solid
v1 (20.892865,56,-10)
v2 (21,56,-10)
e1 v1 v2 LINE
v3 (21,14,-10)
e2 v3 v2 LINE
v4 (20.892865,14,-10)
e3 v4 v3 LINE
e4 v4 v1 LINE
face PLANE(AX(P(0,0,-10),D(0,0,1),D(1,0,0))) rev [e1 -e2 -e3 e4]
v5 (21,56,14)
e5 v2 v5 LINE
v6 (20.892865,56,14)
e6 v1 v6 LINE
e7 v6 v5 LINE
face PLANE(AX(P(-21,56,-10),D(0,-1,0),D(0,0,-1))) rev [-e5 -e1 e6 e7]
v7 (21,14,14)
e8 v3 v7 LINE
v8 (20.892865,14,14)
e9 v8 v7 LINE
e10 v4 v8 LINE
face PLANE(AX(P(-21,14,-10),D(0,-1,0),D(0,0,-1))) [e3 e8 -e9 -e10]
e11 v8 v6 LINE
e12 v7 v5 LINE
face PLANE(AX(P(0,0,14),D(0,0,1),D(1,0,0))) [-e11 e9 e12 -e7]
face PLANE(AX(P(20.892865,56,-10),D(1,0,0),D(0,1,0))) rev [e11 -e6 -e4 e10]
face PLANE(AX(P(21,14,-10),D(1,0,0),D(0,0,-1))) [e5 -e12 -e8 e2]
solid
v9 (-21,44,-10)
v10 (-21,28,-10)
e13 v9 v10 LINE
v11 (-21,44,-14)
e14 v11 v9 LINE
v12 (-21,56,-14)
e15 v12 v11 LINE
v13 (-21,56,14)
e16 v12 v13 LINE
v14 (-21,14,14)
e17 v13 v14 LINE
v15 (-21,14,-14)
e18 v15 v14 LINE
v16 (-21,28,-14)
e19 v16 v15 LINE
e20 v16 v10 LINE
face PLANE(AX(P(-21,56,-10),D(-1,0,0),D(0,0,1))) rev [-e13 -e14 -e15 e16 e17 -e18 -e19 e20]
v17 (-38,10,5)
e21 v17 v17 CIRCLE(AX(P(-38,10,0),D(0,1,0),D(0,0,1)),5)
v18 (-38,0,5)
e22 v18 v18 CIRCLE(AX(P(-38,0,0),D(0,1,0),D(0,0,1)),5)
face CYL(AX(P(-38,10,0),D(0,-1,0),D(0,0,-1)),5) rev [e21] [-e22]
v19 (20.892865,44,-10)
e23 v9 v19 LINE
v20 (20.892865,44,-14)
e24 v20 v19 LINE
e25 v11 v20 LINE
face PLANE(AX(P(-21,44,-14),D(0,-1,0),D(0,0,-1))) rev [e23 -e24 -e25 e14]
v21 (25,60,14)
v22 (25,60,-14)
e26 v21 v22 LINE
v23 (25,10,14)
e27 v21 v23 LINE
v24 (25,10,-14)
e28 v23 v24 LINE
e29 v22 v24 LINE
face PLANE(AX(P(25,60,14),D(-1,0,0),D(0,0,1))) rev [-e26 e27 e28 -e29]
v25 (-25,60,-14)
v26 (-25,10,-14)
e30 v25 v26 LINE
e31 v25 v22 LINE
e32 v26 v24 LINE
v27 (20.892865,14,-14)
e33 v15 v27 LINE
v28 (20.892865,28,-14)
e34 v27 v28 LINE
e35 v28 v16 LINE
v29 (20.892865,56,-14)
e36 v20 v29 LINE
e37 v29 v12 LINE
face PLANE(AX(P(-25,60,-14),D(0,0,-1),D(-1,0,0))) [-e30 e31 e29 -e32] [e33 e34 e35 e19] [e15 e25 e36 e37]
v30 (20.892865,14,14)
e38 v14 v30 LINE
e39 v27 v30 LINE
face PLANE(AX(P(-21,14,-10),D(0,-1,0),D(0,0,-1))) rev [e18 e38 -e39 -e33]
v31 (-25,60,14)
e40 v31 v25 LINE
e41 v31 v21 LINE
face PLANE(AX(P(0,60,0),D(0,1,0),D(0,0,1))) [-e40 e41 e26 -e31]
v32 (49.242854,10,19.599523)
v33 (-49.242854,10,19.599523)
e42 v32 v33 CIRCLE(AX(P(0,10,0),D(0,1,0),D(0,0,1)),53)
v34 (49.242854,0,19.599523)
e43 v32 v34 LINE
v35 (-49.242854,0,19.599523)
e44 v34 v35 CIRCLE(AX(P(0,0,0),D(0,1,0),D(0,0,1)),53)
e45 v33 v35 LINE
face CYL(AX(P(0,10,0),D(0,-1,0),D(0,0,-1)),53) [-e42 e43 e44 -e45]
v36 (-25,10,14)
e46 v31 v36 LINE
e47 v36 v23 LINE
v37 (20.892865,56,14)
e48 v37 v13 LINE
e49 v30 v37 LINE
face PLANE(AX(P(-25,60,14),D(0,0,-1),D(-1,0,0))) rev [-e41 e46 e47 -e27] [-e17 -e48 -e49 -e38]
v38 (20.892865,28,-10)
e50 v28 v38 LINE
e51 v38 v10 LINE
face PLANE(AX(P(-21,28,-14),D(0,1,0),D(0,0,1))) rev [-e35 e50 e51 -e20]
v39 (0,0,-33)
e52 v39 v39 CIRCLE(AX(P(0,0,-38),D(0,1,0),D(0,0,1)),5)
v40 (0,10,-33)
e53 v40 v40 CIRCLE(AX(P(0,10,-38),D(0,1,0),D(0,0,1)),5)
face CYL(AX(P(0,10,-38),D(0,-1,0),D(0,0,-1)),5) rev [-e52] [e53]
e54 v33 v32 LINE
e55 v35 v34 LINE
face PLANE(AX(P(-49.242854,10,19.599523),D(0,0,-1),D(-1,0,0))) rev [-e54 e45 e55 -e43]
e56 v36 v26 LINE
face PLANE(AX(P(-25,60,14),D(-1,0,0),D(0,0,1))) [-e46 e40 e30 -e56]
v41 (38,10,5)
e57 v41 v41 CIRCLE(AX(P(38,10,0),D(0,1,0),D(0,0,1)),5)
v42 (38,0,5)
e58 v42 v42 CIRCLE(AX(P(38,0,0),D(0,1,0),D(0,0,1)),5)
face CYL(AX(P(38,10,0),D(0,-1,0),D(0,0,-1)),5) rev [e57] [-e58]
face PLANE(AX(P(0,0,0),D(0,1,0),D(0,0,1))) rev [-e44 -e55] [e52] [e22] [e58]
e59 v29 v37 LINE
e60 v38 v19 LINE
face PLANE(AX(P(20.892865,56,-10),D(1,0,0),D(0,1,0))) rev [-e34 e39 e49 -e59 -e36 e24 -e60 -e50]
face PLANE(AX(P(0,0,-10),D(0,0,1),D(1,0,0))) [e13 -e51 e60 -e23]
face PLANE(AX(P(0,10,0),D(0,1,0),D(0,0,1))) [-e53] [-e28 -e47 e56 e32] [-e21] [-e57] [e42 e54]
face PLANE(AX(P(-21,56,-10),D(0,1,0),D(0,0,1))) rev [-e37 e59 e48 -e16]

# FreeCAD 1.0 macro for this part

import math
import FreeCAD as App
import Part
import Sketcher
from FreeCAD import Vector
Q = App.Units.Quantity


def add_polygon(sketch, points):
    """Adds a closed chain of lines whose ends are joined by coincident constraints."""
    first, n = sketch.GeometryCount, len(points)
    for a, b in zip(points, points[1:] + points[:1]):
        sketch.addGeometry(Part.LineSegment(App.Vector(*a, 0), App.Vector(*b, 0)), False)
    for i in range(n):
        sketch.addConstraint(Sketcher.Constraint("Coincident", first + i, 2, first + (i + 1) % n, 1))

doc = App.newDocument("Part")
body = doc.addObject("PartDesign::Body", "Body")

# Sketch on XZ plane
sketch1 = body.newObject("Sketcher::SketchObject", "Sketch")
sketch1.AttachmentSupport = (doc.getObject("XZ_Plane"), [""])
sketch1.MapMode = "FlatFace"
sketch1.addGeometry([
    Part.LineSegment(Vector(-49, 20, 0), Vector(49, 20, 0)),  # 0
    Part.ArcOfCircle(Part.Circle(Vector(0, 0, 0), Vector(0, 0, 1), 53), math.radians(158), math.radians(382)),  # 1
    Part.Circle(Vector(-38, 0, 0), Vector(0, 0, 1), 5),  # 2
    Part.Circle(Vector(38, 0, 0), Vector(0, 0, 1), 5),  # 3
    Part.Circle(Vector(0, -38, 0), Vector(0, 0, 1), 5),  # 4
], False)
sketch1.addConstraint([
    Sketcher.Constraint("Coincident", 0, 1, 1, 1),
    Sketcher.Constraint("Coincident", 1, 2, 0, 2),
    Sketcher.Constraint("Horizontal", 0),
    Sketcher.Constraint("Coincident", 1, 3, -1, 1),
    Sketcher.Constraint("Equal", 2, 3),
    Sketcher.Constraint("Equal", 3, 4),
    Sketcher.Constraint("Symmetric", 2, 3, 3, 3, -1, 1),
    Sketcher.Constraint("PointOnObject", 2, 3, -1),
    Sketcher.Constraint("PointOnObject", 4, 3, -2),
    Sketcher.Constraint("Diameter", 2, Q("10 mm")),
    Sketcher.Constraint("Radius", 1, Q("53 mm")),
    Sketcher.Constraint("DistanceX", 2, 3, -1, 1, Q("38 mm")),
    Sketcher.Constraint("DistanceY", 4, 3, -1, 1, Q("38 mm")),
    Sketcher.Constraint("DistanceX", 0, 1, 0, 2, Q("98.485709 mm")),
])
pad1 = body.newObject("PartDesign::Pad", "Pad")
pad1.Profile = sketch1
pad1.Length = 10
pad1.Reversed = True

# Sketch on XZ plane
sketch2 = body.newObject("Sketcher::SketchObject", "Sketch001")
sketch2.AttachmentSupport = (doc.getObject("XZ_Plane"), [""])
sketch2.MapMode = "FlatFace"
sketch2.AttachmentOffset = App.Placement(Vector(0, 0, -10), App.Rotation())
add_polygon(sketch2, [(-25, -14), (-25, 14), (25, 14), (25, -14)])  # lines 0-3
sketch2.addConstraint([
    Sketcher.Constraint("Vertical", 0),
    Sketcher.Constraint("Horizontal", 1),
    Sketcher.Constraint("Vertical", 2),
    Sketcher.Constraint("Horizontal", 3),
    Sketcher.Constraint("Symmetric", 0, 2, 2, 2, -1, 1),
    Sketcher.Constraint("DistanceX", 1, 1, 1, 2, Q("50 mm")),
    Sketcher.Constraint("DistanceY", 0, 1, 0, 2, Q("28 mm")),
])
pad2 = body.newObject("PartDesign::Pad", "Pad001")
pad2.Profile = sketch2
pad2.Length = 50
pad2.Reversed = True
body2 = doc.addObject("PartDesign::Body", "Body001")

# Sketch on XY plane
sketch3 = body2.newObject("Sketcher::SketchObject", "Sketch002")
sketch3.AttachmentSupport = (doc.getObject("XY_Plane001"), [""])
sketch3.MapMode = "FlatFace"
sketch3.AttachmentOffset = App.Placement(Vector(0, 0, 14), App.Rotation())
add_polygon(sketch3, [(-21, 56), (-21, 14), (21, 14), (21, 56)])  # lines 0-3
sketch3.addConstraint([
    Sketcher.Constraint("Vertical", 0),
    Sketcher.Constraint("Horizontal", 1),
    Sketcher.Constraint("Vertical", 2),
    Sketcher.Constraint("Horizontal", 3),
    Sketcher.Constraint("Equal", 3, 0),
    Sketcher.Constraint("DistanceX", 1, 1, 1, 2, Q("42 mm")),
    Sketcher.Constraint("DistanceX", 0, 2, -1, 1, Q("21 mm")),
    Sketcher.Constraint("DistanceY", -1, 1, 0, 2, Q("14 mm")),
])
pad3 = body2.newObject("PartDesign::Pad", "Pad002")
pad3.Profile = sketch3
pad3.Length = 24
pad3.Reversed = True
body3 = doc.addObject("PartDesign::Body", "Body002")

# Sketch on XY plane
sketch4 = body3.newObject("Sketcher::SketchObject", "Sketch003")
sketch4.AttachmentSupport = (doc.getObject("XY_Plane002"), [""])
sketch4.MapMode = "FlatFace"
sketch4.AttachmentOffset = App.Placement(Vector(0, 0, 14), App.Rotation())
add_polygon(sketch4, [(-21, 56), (-21, 14), (21, 14), (21, 56)])  # lines 0-3
sketch4.addConstraint([
    Sketcher.Constraint("Vertical", 0),
    Sketcher.Constraint("Horizontal", 1),
    Sketcher.Constraint("Vertical", 2),
    Sketcher.Constraint("Horizontal", 3),
    Sketcher.Constraint("DistanceY", 0, 2, 0, 1, Q("42 mm")),
    Sketcher.Constraint("DistanceX", 0, 2, -1, 1, Q("21 mm")),
    Sketcher.Constraint("DistanceY", -1, 1, 0, 2, Q("14 mm")),
    Sketcher.Constraint("DistanceX", 1, 1, 1, 2, Q("41.892865 mm")),
])
pad4 = body3.newObject("PartDesign::Pad", "Pad003")
pad4.Profile = sketch4
pad4.Length = 24
pad4.Reversed = True
doc.recompute()

body4 = doc.addObject("PartDesign::Body", "Body003")
body4.BaseFeature = body3
boolean = body.newObject("PartDesign::Boolean", "Boolean")
boolean.Type = "Cut"
boolean.addObjects([body4])
doc.recompute()

# Sketch on XY plane
sketch5 = body.newObject("Sketcher::SketchObject", "Sketch004")
sketch5.AttachmentSupport = (doc.getObject("XY_Plane"), [""])
sketch5.MapMode = "FlatFace"
sketch5.AttachmentOffset = App.Placement(Vector(0, 0, -10), App.Rotation())
add_polygon(sketch5, [(-21, 56), (-21, 44), (21, 44), (21, 56)])  # lines 0-3
sketch5.addConstraint([
    Sketcher.Constraint("Vertical", 0),
    Sketcher.Constraint("Horizontal", 1),
    Sketcher.Constraint("Vertical", 2),
    Sketcher.Constraint("Horizontal", 3),
    Sketcher.Constraint("DistanceY", 0, 2, 0, 1, Q("12 mm")),
    Sketcher.Constraint("DistanceX", 0, 2, -1, 1, Q("21 mm")),
    Sketcher.Constraint("DistanceY", -1, 1, 0, 2, Q("44 mm")),
    Sketcher.Constraint("DistanceX", 1, 1, 1, 2, Q("41.892865 mm")),
])
pocket1 = body.newObject("PartDesign::Pocket", "Pocket")
pocket1.Profile = sketch5
pocket1.Length = 4

# Sketch on XY plane
sketch6 = body.newObject("Sketcher::SketchObject", "Sketch005")
sketch6.AttachmentSupport = (doc.getObject("XY_Plane"), [""])
sketch6.MapMode = "FlatFace"
sketch6.AttachmentOffset = App.Placement(Vector(0, 0, -10), App.Rotation())
add_polygon(sketch6, [(-21, 28), (-21, 14), (21, 14), (21, 28)])  # lines 0-3
sketch6.addConstraint([
    Sketcher.Constraint("Vertical", 0),
    Sketcher.Constraint("Horizontal", 1),
    Sketcher.Constraint("Vertical", 2),
    Sketcher.Constraint("Horizontal", 3),
    Sketcher.Constraint("DistanceY", 0, 2, 0, 1, Q("14 mm")),
    Sketcher.Constraint("DistanceX", 0, 2, -1, 1, Q("21 mm")),
    Sketcher.Constraint("DistanceY", -1, 1, 0, 2, Q("14 mm")),
    Sketcher.Constraint("DistanceX", 1, 1, 1, 2, Q("41.892865 mm")),
])
pocket2 = body.newObject("PartDesign::Pocket", "Pocket001")
pocket2.Profile = sketch6
pocket2.Length = 4
doc.recompute()

boolean2 = body2.newObject("PartDesign::Boolean", "Boolean001")
boolean2.Type = "Cut"
boolean2.addObjects([body3])

doc.recompute()
